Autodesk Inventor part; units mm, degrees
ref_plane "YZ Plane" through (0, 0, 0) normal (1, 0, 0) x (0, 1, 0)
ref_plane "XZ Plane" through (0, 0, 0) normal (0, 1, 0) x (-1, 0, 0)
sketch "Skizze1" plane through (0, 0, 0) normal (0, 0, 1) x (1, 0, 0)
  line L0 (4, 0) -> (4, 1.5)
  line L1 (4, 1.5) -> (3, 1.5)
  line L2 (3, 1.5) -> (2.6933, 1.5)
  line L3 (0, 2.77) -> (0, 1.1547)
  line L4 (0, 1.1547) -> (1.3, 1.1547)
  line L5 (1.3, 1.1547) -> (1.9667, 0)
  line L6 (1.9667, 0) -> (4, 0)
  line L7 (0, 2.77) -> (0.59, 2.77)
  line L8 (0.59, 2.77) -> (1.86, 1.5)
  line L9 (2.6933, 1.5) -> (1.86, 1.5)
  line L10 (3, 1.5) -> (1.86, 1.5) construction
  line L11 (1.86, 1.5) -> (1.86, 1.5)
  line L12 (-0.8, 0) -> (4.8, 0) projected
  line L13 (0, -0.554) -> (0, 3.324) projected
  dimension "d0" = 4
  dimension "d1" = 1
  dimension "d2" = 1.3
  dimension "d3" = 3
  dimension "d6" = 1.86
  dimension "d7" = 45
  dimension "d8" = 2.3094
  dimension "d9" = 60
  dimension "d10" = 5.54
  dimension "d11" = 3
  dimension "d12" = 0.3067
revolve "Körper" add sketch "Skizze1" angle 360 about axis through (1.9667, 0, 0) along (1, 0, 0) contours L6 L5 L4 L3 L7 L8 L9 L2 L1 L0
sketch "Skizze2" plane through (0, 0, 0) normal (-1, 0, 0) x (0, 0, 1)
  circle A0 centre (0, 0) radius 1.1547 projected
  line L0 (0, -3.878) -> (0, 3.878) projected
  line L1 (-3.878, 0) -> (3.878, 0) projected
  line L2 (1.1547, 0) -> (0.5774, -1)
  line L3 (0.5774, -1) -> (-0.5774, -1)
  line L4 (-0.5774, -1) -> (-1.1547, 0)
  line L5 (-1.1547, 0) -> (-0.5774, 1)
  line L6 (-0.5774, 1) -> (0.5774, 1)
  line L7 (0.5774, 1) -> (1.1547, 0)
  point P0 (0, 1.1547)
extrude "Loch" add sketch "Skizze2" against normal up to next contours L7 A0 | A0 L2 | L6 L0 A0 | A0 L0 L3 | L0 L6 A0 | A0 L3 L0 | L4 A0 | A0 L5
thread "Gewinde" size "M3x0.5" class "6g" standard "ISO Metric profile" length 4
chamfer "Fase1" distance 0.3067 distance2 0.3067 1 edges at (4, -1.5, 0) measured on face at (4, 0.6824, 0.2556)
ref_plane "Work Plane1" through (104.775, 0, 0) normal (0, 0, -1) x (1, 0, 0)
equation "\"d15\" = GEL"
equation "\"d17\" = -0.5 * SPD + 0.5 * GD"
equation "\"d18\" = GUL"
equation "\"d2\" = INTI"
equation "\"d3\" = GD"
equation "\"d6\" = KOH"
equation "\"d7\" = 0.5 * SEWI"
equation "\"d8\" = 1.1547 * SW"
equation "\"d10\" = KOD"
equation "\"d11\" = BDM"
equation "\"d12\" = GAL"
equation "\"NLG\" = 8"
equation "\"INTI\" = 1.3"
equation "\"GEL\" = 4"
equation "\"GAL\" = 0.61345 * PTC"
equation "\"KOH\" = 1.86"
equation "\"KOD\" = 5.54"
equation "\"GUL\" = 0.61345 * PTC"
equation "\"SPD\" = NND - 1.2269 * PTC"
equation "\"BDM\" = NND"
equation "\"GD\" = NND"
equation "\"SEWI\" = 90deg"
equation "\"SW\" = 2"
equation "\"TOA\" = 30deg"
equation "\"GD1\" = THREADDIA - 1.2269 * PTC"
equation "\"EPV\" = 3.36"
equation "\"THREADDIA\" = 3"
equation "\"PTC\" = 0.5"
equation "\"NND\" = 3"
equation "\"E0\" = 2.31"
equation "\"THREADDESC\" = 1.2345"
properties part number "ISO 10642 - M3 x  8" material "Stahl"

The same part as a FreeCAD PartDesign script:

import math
import FreeCAD as App
import Part
import Sketcher

V = App.Vector
Q = App.Units.Quantity


def edges_at(feature, points):
    """Names of the edges that pass closest to the given points."""
    edges = feature.Shape.Edges
    near = lambda p: min(range(len(edges)), key=lambda i: edges[i].distToShape(Part.Vertex(*p))[0])
    return sorted({f"Edge{near(p) + 1}" for p in points})

doc = App.newDocument("Part")
body = doc.addObject("PartDesign::Body", "Body")

# Sketch on XY plane
sketch1 = body.newObject("Sketcher::SketchObject", "Sketch")
sketch1.AttachmentSupport = (doc.getObject("XY_Plane"), [""])
sketch1.MapMode = "FlatFace"
sketch1.addGeometry([
    Part.LineSegment(V(2, 0, 0), V(4, 0, 0)),  # 0
    Part.LineSegment(V(4, 0, 0), V(4, 1.5, 0)),  # 1
    Part.LineSegment(V(4, 1.5, 0), V(1.9, 1.5, 0)),  # 2
    Part.LineSegment(V(1.9, 1.5, 0), V(0.6, 2.8, 0)),  # 3
    Part.LineSegment(V(0.6, 2.8, 0), V(0, 2.8, 0)),  # 4
    Part.LineSegment(V(0, 2.8, 0), V(0, 1.2, 0)),  # 5
    Part.LineSegment(V(0, 1.2, 0), V(1.3, 1.2, 0)),  # 6
    Part.LineSegment(V(1.3, 1.2, 0), V(2, 0, 0)),  # 7
], False)
sketch1.addConstraint([
    Sketcher.Constraint("Coincident", 0, 2, 1, 1),
    Sketcher.Constraint("Coincident", 1, 2, 2, 1),
    Sketcher.Constraint("Coincident", 2, 2, 3, 1),
    Sketcher.Constraint("Coincident", 3, 2, 4, 1),
    Sketcher.Constraint("Coincident", 4, 2, 5, 1),
    Sketcher.Constraint("Coincident", 5, 2, 6, 1),
    Sketcher.Constraint("Coincident", 6, 2, 7, 1),
    Sketcher.Constraint("Coincident", 7, 2, 0, 1),
    Sketcher.Constraint("Horizontal", 0),
    Sketcher.Constraint("Vertical", 1),
    Sketcher.Constraint("Horizontal", 2),
    Sketcher.Constraint("Horizontal", 4),
    Sketcher.Constraint("Vertical", 5),
    Sketcher.Constraint("Horizontal", 6),
    Sketcher.Constraint("PointOnObject", 0, 2, -1),
    Sketcher.Constraint("PointOnObject", 4, 2, -2),
    Sketcher.Constraint("DistanceX", 6, 1, 6, 2, 1.3),
    Sketcher.Constraint("DistanceX", -1, 1, 0, 2, 4.0),
    Sketcher.Constraint("DistanceX", -1, 1, 2, 2, 1.86),
    Sketcher.Constraint("Angle", 3, Q("135 deg")),
    Sketcher.Constraint("DistanceY", 1, 1, 1, 2, 1.5),
    Sketcher.Constraint("DistanceX", 4, 2, 4, 1, 0.59),
    Sketcher.Constraint("DistanceX", 0, 1, 0, 2, 2.0333),
    Sketcher.Constraint("DistanceY", 5, 2, 5, 1, 1.6153),
])
revolution = body.newObject("PartDesign::Revolution", "Revolution")
revolution.Profile = sketch1
revolution.ReferenceAxis = (sketch1, ["H_Axis"])
revolution.Angle = 360

# Sketch on YZ plane
sketch2 = body.newObject("Sketcher::SketchObject", "Sketch001")
sketch2.AttachmentSupport = (doc.getObject("YZ_Plane"), [""])
sketch2.MapMode = "FlatFace"
sketch2.addGeometry([
    Part.LineSegment(V(1, 0.6, 0), V(0, 1.2, 0)),  # 0
    Part.ArcOfCircle(Part.Circle(V(0, 0, 0), V(0, 0, 1), 1.2), math.radians(30), math.radians(90)),  # 1
    Part.ArcOfCircle(Part.Circle(V(0, 0, 0), V(0, 0, 1), 1.2), math.radians(90), math.radians(150)),  # 2
    Part.LineSegment(V(0, 1.2, 0), V(-1, 0.6, 0)),  # 3
    Part.ArcOfCircle(Part.Circle(V(0, 0, 0), V(0, 0, 1), 1.2), math.radians(-30), math.radians(30)),  # 4
    Part.LineSegment(V(1, 0.6, 0), V(1, -0.6, 0)),  # 5
    Part.LineSegment(V(-1, 0.6, 0), V(-1, -0.6, 0)),  # 6
    Part.ArcOfCircle(Part.Circle(V(0, 0, 0), V(0, 0, 1), 1.2), math.radians(150), math.radians(210)),  # 7
    Part.LineSegment(V(-1, -0.6, 0), V(0, -1.2, 0)),  # 8
    Part.ArcOfCircle(Part.Circle(V(0, 0, 0), V(0, 0, 1), 1.2), math.radians(-150), math.radians(-90)),  # 9
    Part.ArcOfCircle(Part.Circle(V(0, 0, 0), V(0, 0, 1), 1.2), math.radians(-90), math.radians(-30)),  # 10
    Part.LineSegment(V(0, -1.2, 0), V(1, -0.6, 0)),  # 11
], False)
sketch2.addConstraint([
    Sketcher.Constraint("Coincident", 0, 1, 1, 1),
    Sketcher.Constraint("Coincident", 1, 2, 0, 2),
    Sketcher.Constraint("Coincident", 2, 1, 3, 1),
    Sketcher.Constraint("Coincident", 3, 2, 2, 2),
    Sketcher.Constraint("Coincident", 4, 1, 5, 2),
    Sketcher.Constraint("Coincident", 5, 1, 4, 2),
    Sketcher.Constraint("Coincident", 6, 1, 7, 1),
    Sketcher.Constraint("Coincident", 7, 2, 6, 2),
    Sketcher.Constraint("Coincident", 8, 1, 9, 1),
    Sketcher.Constraint("Coincident", 9, 2, 8, 2),
    Sketcher.Constraint("Coincident", 10, 1, 11, 1),
    Sketcher.Constraint("Coincident", 11, 2, 10, 2),
    Sketcher.Constraint("Vertical", 5),
    Sketcher.Constraint("Vertical", 6),
    Sketcher.Constraint("Coincident", 1, 3, -1, 1),
    Sketcher.Constraint("Coincident", 2, 3, -1, 1),
    Sketcher.Constraint("Coincident", 4, 3, -1, 1),
    Sketcher.Constraint("Coincident", 7, 3, -1, 1),
    Sketcher.Constraint("Coincident", 9, 3, -1, 1),
    Sketcher.Constraint("Coincident", 10, 3, -1, 1),
    Sketcher.Constraint("Coincident", 2, 1, 1, 2),
    Sketcher.Constraint("Coincident", 5, 1, 0, 1),
    Sketcher.Constraint("Coincident", 6, 1, 3, 2),
    Sketcher.Constraint("Coincident", 8, 1, 7, 2),
    Sketcher.Constraint("Coincident", 10, 1, 9, 2),
    Sketcher.Constraint("PointOnObject", 1, 2, -2),
    Sketcher.Constraint("PointOnObject", 9, 2, -2),
    Sketcher.Constraint("Parallel", 0, 8),
    Sketcher.Constraint("Parallel", 3, 11),
    Sketcher.Constraint("DistanceX", -1, 1, 0, 1, 1.0),
    Sketcher.Constraint("Radius", 1, 1.1547),
])
pad1 = body.newObject("PartDesign::Pad", "Pad")
pad1.Profile = sketch2
pad1.Type = "UpToFirst"
doc.recompute()

chamfer = body.newObject("PartDesign::Chamfer", "Chamfer")
chamfer.Base = (pad1, edges_at(pad1, [(4, -1.5, 0)]))
chamfer.ChamferType = "Two distances"
chamfer.Size = 0.3067
chamfer.Size2 = 0.3067

doc.recompute()
